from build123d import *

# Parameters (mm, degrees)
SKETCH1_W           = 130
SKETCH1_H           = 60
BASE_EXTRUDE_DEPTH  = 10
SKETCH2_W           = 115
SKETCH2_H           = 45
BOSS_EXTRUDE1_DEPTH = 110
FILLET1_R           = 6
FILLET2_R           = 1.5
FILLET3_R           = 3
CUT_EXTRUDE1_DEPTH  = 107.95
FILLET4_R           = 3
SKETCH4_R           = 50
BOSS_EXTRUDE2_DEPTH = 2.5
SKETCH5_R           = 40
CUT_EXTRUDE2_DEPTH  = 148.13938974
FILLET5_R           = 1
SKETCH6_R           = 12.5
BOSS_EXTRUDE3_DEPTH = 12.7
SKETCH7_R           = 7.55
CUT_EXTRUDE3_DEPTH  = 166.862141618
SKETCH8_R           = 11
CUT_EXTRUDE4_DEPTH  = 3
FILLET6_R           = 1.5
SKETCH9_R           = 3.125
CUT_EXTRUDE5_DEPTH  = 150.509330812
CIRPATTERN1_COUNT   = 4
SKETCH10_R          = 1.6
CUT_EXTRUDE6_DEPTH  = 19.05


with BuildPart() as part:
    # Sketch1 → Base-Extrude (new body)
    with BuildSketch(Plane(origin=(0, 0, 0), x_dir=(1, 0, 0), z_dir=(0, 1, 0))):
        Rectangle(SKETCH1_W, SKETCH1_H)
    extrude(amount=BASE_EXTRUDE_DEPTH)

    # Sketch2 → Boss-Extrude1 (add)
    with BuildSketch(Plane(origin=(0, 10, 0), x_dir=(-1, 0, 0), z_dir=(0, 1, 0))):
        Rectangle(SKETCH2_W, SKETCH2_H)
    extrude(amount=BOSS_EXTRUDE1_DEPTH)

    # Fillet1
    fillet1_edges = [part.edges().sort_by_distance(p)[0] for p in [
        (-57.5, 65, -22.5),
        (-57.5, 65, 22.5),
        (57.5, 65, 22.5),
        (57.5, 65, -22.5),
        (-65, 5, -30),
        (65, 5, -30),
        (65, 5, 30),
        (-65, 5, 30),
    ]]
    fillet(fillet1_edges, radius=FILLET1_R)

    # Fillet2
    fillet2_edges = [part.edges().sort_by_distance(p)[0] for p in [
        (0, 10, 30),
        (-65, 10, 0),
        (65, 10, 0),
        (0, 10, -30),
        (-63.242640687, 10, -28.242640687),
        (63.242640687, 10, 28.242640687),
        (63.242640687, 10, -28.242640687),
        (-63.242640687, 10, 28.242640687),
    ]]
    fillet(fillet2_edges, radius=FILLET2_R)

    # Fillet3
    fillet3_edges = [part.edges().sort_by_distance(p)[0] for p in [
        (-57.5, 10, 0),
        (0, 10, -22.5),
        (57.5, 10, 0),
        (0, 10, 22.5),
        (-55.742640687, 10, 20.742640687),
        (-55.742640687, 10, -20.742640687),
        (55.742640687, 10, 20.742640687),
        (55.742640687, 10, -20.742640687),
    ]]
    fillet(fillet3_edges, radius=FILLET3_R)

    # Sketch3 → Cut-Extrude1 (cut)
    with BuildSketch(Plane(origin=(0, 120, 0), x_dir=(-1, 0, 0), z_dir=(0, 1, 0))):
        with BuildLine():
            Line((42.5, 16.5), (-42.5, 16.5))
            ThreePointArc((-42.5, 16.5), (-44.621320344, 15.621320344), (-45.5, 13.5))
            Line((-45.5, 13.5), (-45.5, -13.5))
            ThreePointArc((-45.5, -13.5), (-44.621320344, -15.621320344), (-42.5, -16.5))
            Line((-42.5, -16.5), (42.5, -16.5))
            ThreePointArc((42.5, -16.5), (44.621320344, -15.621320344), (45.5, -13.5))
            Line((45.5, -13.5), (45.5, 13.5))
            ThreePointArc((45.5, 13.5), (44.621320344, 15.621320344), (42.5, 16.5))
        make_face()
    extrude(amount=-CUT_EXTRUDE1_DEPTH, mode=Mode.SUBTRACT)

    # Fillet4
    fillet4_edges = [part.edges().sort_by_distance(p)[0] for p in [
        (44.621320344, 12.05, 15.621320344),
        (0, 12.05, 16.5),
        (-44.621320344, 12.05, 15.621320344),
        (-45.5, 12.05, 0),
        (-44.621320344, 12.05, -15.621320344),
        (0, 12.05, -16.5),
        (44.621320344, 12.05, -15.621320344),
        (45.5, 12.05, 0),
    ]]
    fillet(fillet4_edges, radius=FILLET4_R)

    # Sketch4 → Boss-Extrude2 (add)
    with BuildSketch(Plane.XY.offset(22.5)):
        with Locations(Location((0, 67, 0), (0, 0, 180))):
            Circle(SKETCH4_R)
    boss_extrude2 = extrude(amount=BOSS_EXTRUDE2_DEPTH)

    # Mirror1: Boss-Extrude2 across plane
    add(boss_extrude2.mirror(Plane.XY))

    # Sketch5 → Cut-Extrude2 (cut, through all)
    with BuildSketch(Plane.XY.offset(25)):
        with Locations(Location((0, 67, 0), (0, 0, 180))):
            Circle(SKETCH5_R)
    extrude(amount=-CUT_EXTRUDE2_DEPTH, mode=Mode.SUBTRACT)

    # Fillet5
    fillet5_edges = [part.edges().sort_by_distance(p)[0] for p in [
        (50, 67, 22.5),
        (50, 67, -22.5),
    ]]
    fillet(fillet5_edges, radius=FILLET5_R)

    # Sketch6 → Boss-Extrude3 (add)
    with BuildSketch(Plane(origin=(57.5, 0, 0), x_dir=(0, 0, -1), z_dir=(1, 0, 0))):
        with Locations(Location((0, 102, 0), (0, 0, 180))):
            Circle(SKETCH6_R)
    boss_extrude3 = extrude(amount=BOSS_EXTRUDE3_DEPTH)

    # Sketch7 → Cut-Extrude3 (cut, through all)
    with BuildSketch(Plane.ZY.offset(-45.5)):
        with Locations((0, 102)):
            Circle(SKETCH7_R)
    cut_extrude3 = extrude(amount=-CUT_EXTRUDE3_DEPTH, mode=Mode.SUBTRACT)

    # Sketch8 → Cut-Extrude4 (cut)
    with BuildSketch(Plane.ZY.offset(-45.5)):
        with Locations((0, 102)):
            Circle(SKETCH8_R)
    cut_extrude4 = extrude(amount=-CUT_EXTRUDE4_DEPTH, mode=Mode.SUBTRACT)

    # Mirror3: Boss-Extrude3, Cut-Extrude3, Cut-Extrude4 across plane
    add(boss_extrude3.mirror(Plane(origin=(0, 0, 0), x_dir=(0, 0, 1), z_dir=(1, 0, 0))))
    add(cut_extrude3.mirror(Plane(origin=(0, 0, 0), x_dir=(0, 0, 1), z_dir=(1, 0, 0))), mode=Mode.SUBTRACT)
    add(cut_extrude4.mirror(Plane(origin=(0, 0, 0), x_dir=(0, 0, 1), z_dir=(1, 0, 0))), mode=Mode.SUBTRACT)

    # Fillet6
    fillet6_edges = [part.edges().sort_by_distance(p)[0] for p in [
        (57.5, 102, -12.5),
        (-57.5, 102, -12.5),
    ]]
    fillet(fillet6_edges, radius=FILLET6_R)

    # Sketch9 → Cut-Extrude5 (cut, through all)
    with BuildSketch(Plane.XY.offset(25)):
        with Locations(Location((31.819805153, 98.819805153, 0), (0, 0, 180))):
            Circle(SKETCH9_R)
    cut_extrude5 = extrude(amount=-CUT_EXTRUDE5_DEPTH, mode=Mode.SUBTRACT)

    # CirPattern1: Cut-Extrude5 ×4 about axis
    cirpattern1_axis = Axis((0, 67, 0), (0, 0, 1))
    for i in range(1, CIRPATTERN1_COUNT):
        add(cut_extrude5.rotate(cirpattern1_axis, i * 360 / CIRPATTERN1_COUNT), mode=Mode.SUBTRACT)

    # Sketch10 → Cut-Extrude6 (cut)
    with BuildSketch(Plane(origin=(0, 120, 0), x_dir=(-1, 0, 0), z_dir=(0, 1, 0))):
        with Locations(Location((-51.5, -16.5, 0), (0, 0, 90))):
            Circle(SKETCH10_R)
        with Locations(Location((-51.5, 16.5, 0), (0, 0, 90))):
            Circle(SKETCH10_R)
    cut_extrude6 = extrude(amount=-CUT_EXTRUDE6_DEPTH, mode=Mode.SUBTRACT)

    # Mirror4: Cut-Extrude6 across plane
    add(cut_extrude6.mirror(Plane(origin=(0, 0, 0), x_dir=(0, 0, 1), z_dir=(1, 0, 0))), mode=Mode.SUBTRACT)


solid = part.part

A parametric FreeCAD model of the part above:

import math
import FreeCAD as App
import Part
import Sketcher


def edges_at(feature, points):
    """Names of the edges that pass closest to the given points."""
    edges = feature.Shape.Edges
    near = lambda p: min(range(len(edges)), key=lambda i: edges[i].distToShape(Part.Vertex(*p))[0])
    return sorted({f"Edge{near(p) + 1}" for p in points})

doc = App.newDocument("Part")
body = doc.addObject("PartDesign::Body", "Body")

# Sketch on XZ plane
sketch1 = doc.addObject("Sketcher::SketchObject", "Sketch")
body.addObject(sketch1)
sketch1.AttachmentSupport = (doc.XZ_Plane, [""])
sketch1.MapMode = "FlatFace"
sketch1.addGeometry(Part.LineSegment(App.Vector(-65, -30, 0), App.Vector(-65, 30, 0)), False)
sketch1.addGeometry(Part.LineSegment(App.Vector(-65, 30, 0), App.Vector(65, 30, 0)), False)
sketch1.addGeometry(Part.LineSegment(App.Vector(65, 30, 0), App.Vector(65, -30, 0)), False)
sketch1.addGeometry(Part.LineSegment(App.Vector(65, -30, 0), App.Vector(-65, -30, 0)), False)
sketch1.addConstraint(Sketcher.Constraint("Coincident", 0, 2, 1, 1))
sketch1.addConstraint(Sketcher.Constraint("Coincident", 1, 2, 2, 1))
sketch1.addConstraint(Sketcher.Constraint("Coincident", 2, 2, 3, 1))
sketch1.addConstraint(Sketcher.Constraint("Coincident", 3, 2, 0, 1))
sketch1.addConstraint(Sketcher.Constraint("Vertical", 0))
sketch1.addConstraint(Sketcher.Constraint("Horizontal", 1))
sketch1.addConstraint(Sketcher.Constraint("Vertical", 2))
sketch1.addConstraint(Sketcher.Constraint("Horizontal", 3))
sketch1.addConstraint(Sketcher.Constraint("Symmetric", 0, 2, 2, 2, -1, 1))
sketch1.addConstraint(Sketcher.Constraint("DistanceX", 1, 1, 1, 2, 130.0))
sketch1.addConstraint(Sketcher.Constraint("DistanceY", 0, 1, 0, 2, 60.0))
pad1 = doc.addObject("PartDesign::Pad", "Pad")
body.addObject(pad1)
pad1.Profile = sketch1
pad1.Length = 10
pad1.Reversed = True

# Sketch on XZ plane
sketch2 = doc.addObject("Sketcher::SketchObject", "Sketch001")
body.addObject(sketch2)
sketch2.AttachmentSupport = (doc.XZ_Plane, [""])
sketch2.MapMode = "FlatFace"
sketch2.AttachmentOffset = App.Placement(App.Vector(0, 0, -10), App.Rotation())
sketch2.addGeometry(Part.LineSegment(App.Vector(58, 22, 0), App.Vector(58, -22, 0)), False)
sketch2.addGeometry(Part.LineSegment(App.Vector(58, -22, 0), App.Vector(-58, -22, 0)), False)
sketch2.addGeometry(Part.LineSegment(App.Vector(-58, -22, 0), App.Vector(-58, 22, 0)), False)
sketch2.addGeometry(Part.LineSegment(App.Vector(-58, 22, 0), App.Vector(58, 22, 0)), False)
sketch2.addConstraint(Sketcher.Constraint("Coincident", 0, 2, 1, 1))
sketch2.addConstraint(Sketcher.Constraint("Coincident", 1, 2, 2, 1))
sketch2.addConstraint(Sketcher.Constraint("Coincident", 2, 2, 3, 1))
sketch2.addConstraint(Sketcher.Constraint("Coincident", 3, 2, 0, 1))
sketch2.addConstraint(Sketcher.Constraint("Vertical", 0))
sketch2.addConstraint(Sketcher.Constraint("Horizontal", 1))
sketch2.addConstraint(Sketcher.Constraint("Vertical", 2))
sketch2.addConstraint(Sketcher.Constraint("Horizontal", 3))
sketch2.addConstraint(Sketcher.Constraint("Symmetric", 0, 2, 2, 2, -1, 1))
sketch2.addConstraint(Sketcher.Constraint("DistanceX", 1, 2, 1, 1, 115.0))
sketch2.addConstraint(Sketcher.Constraint("DistanceY", 0, 2, 0, 1, 45.0))
pad2 = doc.addObject("PartDesign::Pad", "Pad001")
body.addObject(pad2)
pad2.Profile = sketch2
pad2.Length = 110
pad2.Reversed = True
doc.recompute()

fillet = doc.addObject("PartDesign::Fillet", "Fillet")
body.addObject(fillet)
fillet.Base = (pad2, edges_at(pad2, [
    (-57.5, 65, -22.5),
    (-57.5, 65, 22.5),
    (57.5, 65, 22.5),
    (57.5, 65, -22.5),
    (-65, 5, -30),
    (65, 5, -30),
    (65, 5, 30),
    (-65, 5, 30),
]))
fillet.Radius = 6
doc.recompute()

fillet2 = doc.addObject("PartDesign::Fillet", "Fillet001")
body.addObject(fillet2)
fillet2.Base = (fillet, edges_at(fillet, [
    (0, 10, 30),
    (-65, 10, 0),
    (65, 10, 0),
    (0, 10, -30),
    (-63.243, 10, -28.243),
    (63.243, 10, 28.243),
    (63.243, 10, -28.243),
    (-63.243, 10, 28.243),
]))
fillet2.Radius = 1.5
doc.recompute()

fillet3 = doc.addObject("PartDesign::Fillet", "Fillet002")
body.addObject(fillet3)
fillet3.Base = (fillet2, edges_at(fillet2, [
    (-57.5, 10, 0),
    (0, 10, -22.5),
    (57.5, 10, 0),
    (0, 10, 22.5),
    (-55.743, 10, 20.743),
    (-55.743, 10, -20.743),
    (55.743, 10, 20.743),
    (55.743, 10, -20.743),
]))
fillet3.Radius = 3

# Sketch on XZ plane
sketch3 = doc.addObject("Sketcher::SketchObject", "Sketch002")
body.addObject(sketch3)
sketch3.AttachmentSupport = (doc.XZ_Plane, [""])
sketch3.MapMode = "FlatFace"
sketch3.AttachmentOffset = App.Placement(App.Vector(0, 0, -120), App.Rotation())
sketch3.addGeometry(Part.LineSegment(App.Vector(-42.5, 16.5, 0), App.Vector(42.5, 16.5, 0)), False)
sketch3.addGeometry(Part.ArcOfCircle(Part.Circle(App.Vector(42.5, 13.5, 0), App.Vector(0, 0, 1), 3), math.radians(0), math.radians(90)), False)
sketch3.addGeometry(Part.LineSegment(App.Vector(45.5, 13.5, 0), App.Vector(45.5, -13.5, 0)), False)
sketch3.addGeometry(Part.ArcOfCircle(Part.Circle(App.Vector(42.5, -13.5, 0), App.Vector(0, 0, 1), 3), math.radians(-90), math.radians(0)), False)
sketch3.addGeometry(Part.LineSegment(App.Vector(42.5, -16.5, 0), App.Vector(-42.5, -16.5, 0)), False)
sketch3.addGeometry(Part.ArcOfCircle(Part.Circle(App.Vector(-42.5, -13.5, 0), App.Vector(0, 0, 1), 3), math.radians(180), math.radians(270)), False)
sketch3.addGeometry(Part.LineSegment(App.Vector(-45.5, -13.5, 0), App.Vector(-45.5, 13.5, 0)), False)
sketch3.addGeometry(Part.ArcOfCircle(Part.Circle(App.Vector(-42.5, 13.5, 0), App.Vector(0, 0, 1), 3), math.radians(90), math.radians(180)), False)
sketch3.addConstraint(Sketcher.Constraint("Tangent", 0, 2, 1, 2))
sketch3.addConstraint(Sketcher.Constraint("Tangent", 1, 1, 2, 1))
sketch3.addConstraint(Sketcher.Constraint("Tangent", 2, 2, 3, 2))
sketch3.addConstraint(Sketcher.Constraint("Tangent", 3, 1, 4, 1))
sketch3.addConstraint(Sketcher.Constraint("Tangent", 4, 2, 5, 2))
sketch3.addConstraint(Sketcher.Constraint("Tangent", 5, 1, 6, 1))
sketch3.addConstraint(Sketcher.Constraint("Tangent", 6, 2, 7, 2))
sketch3.addConstraint(Sketcher.Constraint("Tangent", 7, 1, 0, 1))
sketch3.addConstraint(Sketcher.Constraint("Horizontal", 0))
sketch3.addConstraint(Sketcher.Constraint("Vertical", 2))
sketch3.addConstraint(Sketcher.Constraint("Horizontal", 4))
sketch3.addConstraint(Sketcher.Constraint("Vertical", 6))
sketch3.addConstraint(Sketcher.Constraint("Equal", 1, 3))
sketch3.addConstraint(Sketcher.Constraint("Equal", 3, 5))
sketch3.addConstraint(Sketcher.Constraint("Equal", 5, 7))
sketch3.addConstraint(Sketcher.Constraint("Symmetric", 1, 3, 5, 3, -1, 1))
sketch3.addConstraint(Sketcher.Constraint("Radius", 1, 3.0))
sketch3.addConstraint(Sketcher.Constraint("DistanceX", 0, 1, 0, 2, 85.0))
sketch3.addConstraint(Sketcher.Constraint("DistanceY", 2, 2, 2, 1, 27.0))
pocket1 = doc.addObject("PartDesign::Pocket", "Pocket")
body.addObject(pocket1)
pocket1.Profile = sketch3
pocket1.Length = 107.95
pocket1.Reversed = True
doc.recompute()

fillet4 = doc.addObject("PartDesign::Fillet", "Fillet003")
body.addObject(fillet4)
fillet4.Base = (pocket1, edges_at(pocket1, [
    (44.621, 12.05, 15.621),
    (0, 12.05, 16.5),
    (-44.621, 12.05, 15.621),
    (-45.5, 12.05, 0),
    (-44.621, 12.05, -15.621),
    (0, 12.05, -16.5),
    (44.621, 12.05, -15.621),
    (45.5, 12.05, 0),
]))
fillet4.Radius = 3

# Sketch on XY plane
sketch4 = doc.addObject("Sketcher::SketchObject", "Sketch003")
body.addObject(sketch4)
sketch4.AttachmentSupport = (doc.XY_Plane, [""])
sketch4.MapMode = "FlatFace"
sketch4.AttachmentOffset = App.Placement(App.Vector(0, 0, 22.5), App.Rotation())
sketch4.addGeometry(Part.Circle(App.Vector(0, 67, 0), App.Vector(0, 0, 1), 50), False)
sketch4.addConstraint(Sketcher.Constraint("PointOnObject", 0, 3, -2))
sketch4.addConstraint(Sketcher.Constraint("Diameter", 0, 100.0))
sketch4.addConstraint(Sketcher.Constraint("DistanceY", -1, 1, 0, 3, 67.0))
pad3 = doc.addObject("PartDesign::Pad", "Pad002")
body.addObject(pad3)
pad3.Profile = sketch4
pad3.Length = 2.5
doc.recompute()

mirrored = doc.addObject("PartDesign::Mirrored", "Mirrored")
body.addObject(mirrored)
mirrored.Originals = [pad3]
mirrored.MirrorPlane = (doc.XY_Plane, [""])
body.Tip = mirrored

# Sketch on XY plane
sketch5 = doc.addObject("Sketcher::SketchObject", "Sketch004")
body.addObject(sketch5)
sketch5.AttachmentSupport = (doc.XY_Plane, [""])
sketch5.MapMode = "FlatFace"
sketch5.AttachmentOffset = App.Placement(App.Vector(0, 0, 25), App.Rotation())
sketch5.addGeometry(Part.Circle(App.Vector(0, 67, 0), App.Vector(0, 0, 1), 40), False)
sketch5.addConstraint(Sketcher.Constraint("PointOnObject", 0, 3, -2))
sketch5.addConstraint(Sketcher.Constraint("Diameter", 0, 80.0))
sketch5.addConstraint(Sketcher.Constraint("DistanceY", -1, 1, 0, 3, 67.0))
pocket2 = doc.addObject("PartDesign::Pocket", "Pocket001")
body.addObject(pocket2)
pocket2.Profile = sketch5
pocket2.Type = "ThroughAll"
doc.recompute()

fillet5 = doc.addObject("PartDesign::Fillet", "Fillet004")
body.addObject(fillet5)
fillet5.Base = (pocket2, edges_at(pocket2, [(50, 67, 22.5), (50, 67, -22.5)]))
fillet5.Radius = 1

# Sketch on YZ plane
sketch6 = doc.addObject("Sketcher::SketchObject", "Sketch005")
body.addObject(sketch6)
sketch6.AttachmentSupport = (doc.YZ_Plane, [""])
sketch6.MapMode = "FlatFace"
sketch6.AttachmentOffset = App.Placement(App.Vector(0, 0, 57.5), App.Rotation())
sketch6.addGeometry(Part.Circle(App.Vector(102, 0, 0), App.Vector(0, 0, 1), 12), False)
sketch6.addConstraint(Sketcher.Constraint("PointOnObject", 0, 3, -1))
sketch6.addConstraint(Sketcher.Constraint("Diameter", 0, 25.0))
sketch6.addConstraint(Sketcher.Constraint("DistanceX", -1, 1, 0, 3, 102.0))
pad4 = doc.addObject("PartDesign::Pad", "Pad003")
body.addObject(pad4)
pad4.Profile = sketch6
pad4.Length = 12.7

# Sketch on YZ plane
sketch7 = doc.addObject("Sketcher::SketchObject", "Sketch006")
body.addObject(sketch7)
sketch7.AttachmentSupport = (doc.YZ_Plane, [""])
sketch7.MapMode = "FlatFace"
sketch7.AttachmentOffset = App.Placement(App.Vector(0, 0, 45.5), App.Rotation())
sketch7.addGeometry(Part.Circle(App.Vector(102, 0, 0), App.Vector(0, 0, 1), 8), False)
sketch7.addConstraint(Sketcher.Constraint("PointOnObject", 0, 3, -1))
sketch7.addConstraint(Sketcher.Constraint("Diameter", 0, 15.1))
sketch7.addConstraint(Sketcher.Constraint("DistanceX", -1, 1, 0, 3, 102.0))
pocket3 = doc.addObject("PartDesign::Pocket", "Pocket002")
body.addObject(pocket3)
pocket3.Profile = sketch7
pocket3.Type = "ThroughAll"
pocket3.Reversed = True

# Sketch on YZ plane
sketch8 = doc.addObject("Sketcher::SketchObject", "Sketch007")
body.addObject(sketch8)
sketch8.AttachmentSupport = (doc.YZ_Plane, [""])
sketch8.MapMode = "FlatFace"
sketch8.AttachmentOffset = App.Placement(App.Vector(0, 0, 45.5), App.Rotation())
sketch8.addGeometry(Part.Circle(App.Vector(102, 0, 0), App.Vector(0, 0, 1), 11), False)
sketch8.addConstraint(Sketcher.Constraint("PointOnObject", 0, 3, -1))
sketch8.addConstraint(Sketcher.Constraint("Diameter", 0, 22.0))
sketch8.addConstraint(Sketcher.Constraint("DistanceX", -1, 1, 0, 3, 102.0))
pocket4 = doc.addObject("PartDesign::Pocket", "Pocket003")
body.addObject(pocket4)
pocket4.Profile = sketch8
pocket4.Length = 3
pocket4.Reversed = True
doc.recompute()

mirrored2 = doc.addObject("PartDesign::Mirrored", "Mirrored001")
body.addObject(mirrored2)
mirrored2.Originals = [pad4, pocket3, pocket4]
mirrored2.MirrorPlane = (doc.YZ_Plane, [""])
body.Tip = mirrored2
doc.recompute()

fillet6 = doc.addObject("PartDesign::Fillet", "Fillet005")
body.addObject(fillet6)
fillet6.Base = (mirrored2, edges_at(mirrored2, [(57.5, 102, -12.5), (-57.5, 102, -12.5)]))
fillet6.Radius = 1.5

# Sketch on XY plane
sketch9 = doc.addObject("Sketcher::SketchObject", "Sketch008")
body.addObject(sketch9)
sketch9.AttachmentSupport = (doc.XY_Plane, [""])
sketch9.MapMode = "FlatFace"
sketch9.AttachmentOffset = App.Placement(App.Vector(0, 0, 25), App.Rotation())
sketch9.addGeometry(Part.Circle(App.Vector(31.8, 98.8, 0), App.Vector(0, 0, 1), 3.1), False)
sketch9.addConstraint(Sketcher.Constraint("Diameter", 0, 6.25))
sketch9.addConstraint(Sketcher.Constraint("DistanceX", -1, 1, 0, 3, 31.819805))
sketch9.addConstraint(Sketcher.Constraint("DistanceY", -1, 1, 0, 3, 98.819805))
pocket5 = doc.addObject("PartDesign::Pocket", "Pocket004")
body.addObject(pocket5)
pocket5.Profile = sketch9
pocket5.Type = "ThroughAll"
doc.recompute()

datumline = doc.addObject("PartDesign::Line", "DatumLine")
body.addObject(datumline)
datumline.Placement = App.Placement(App.Vector(0, 67, 0), App.Rotation(App.Vector(0, 0, 1), App.Vector(0, 0, 1)))
polarpattern = doc.addObject("PartDesign::PolarPattern", "PolarPattern")
body.addObject(polarpattern)
polarpattern.Originals = [pocket5]
polarpattern.Axis = (datumline, [""])
polarpattern.Angle = 360
polarpattern.Occurrences = 4
body.Tip = polarpattern

# Sketch on XZ plane
sketch10 = doc.addObject("Sketcher::SketchObject", "Sketch009")
body.addObject(sketch10)
sketch10.AttachmentSupport = (doc.XZ_Plane, [""])
sketch10.MapMode = "FlatFace"
sketch10.AttachmentOffset = App.Placement(App.Vector(0, 0, -120), App.Rotation())
sketch10.addGeometry(Part.Circle(App.Vector(51.5, -16.5, 0), App.Vector(0, 0, 1), 1.6), False)
sketch10.addGeometry(Part.Circle(App.Vector(51.5, 16.5, 0), App.Vector(0, 0, 1), 1.6), False)
sketch10.addConstraint(Sketcher.Constraint("Equal", 0, 1))
sketch10.addConstraint(Sketcher.Constraint("Symmetric", 0, 3, 1, 3, -1))
sketch10.addConstraint(Sketcher.Constraint("Diameter", 0, 3.2))
sketch10.addConstraint(Sketcher.Constraint("DistanceY", 0, 3, 1, 3, 33.0))
sketch10.addConstraint(Sketcher.Constraint("DistanceX", -1, 1, 0, 3, 51.5))
pocket6 = doc.addObject("PartDesign::Pocket", "Pocket005")
body.addObject(pocket6)
pocket6.Profile = sketch10
pocket6.Length = 19.05
pocket6.Reversed = True
doc.recompute()

mirrored3 = doc.addObject("PartDesign::Mirrored", "Mirrored002")
body.addObject(mirrored3)
mirrored3.Originals = [pocket6]
mirrored3.MirrorPlane = (doc.YZ_Plane, [""])
body.Tip = mirrored3

doc.recompute()
